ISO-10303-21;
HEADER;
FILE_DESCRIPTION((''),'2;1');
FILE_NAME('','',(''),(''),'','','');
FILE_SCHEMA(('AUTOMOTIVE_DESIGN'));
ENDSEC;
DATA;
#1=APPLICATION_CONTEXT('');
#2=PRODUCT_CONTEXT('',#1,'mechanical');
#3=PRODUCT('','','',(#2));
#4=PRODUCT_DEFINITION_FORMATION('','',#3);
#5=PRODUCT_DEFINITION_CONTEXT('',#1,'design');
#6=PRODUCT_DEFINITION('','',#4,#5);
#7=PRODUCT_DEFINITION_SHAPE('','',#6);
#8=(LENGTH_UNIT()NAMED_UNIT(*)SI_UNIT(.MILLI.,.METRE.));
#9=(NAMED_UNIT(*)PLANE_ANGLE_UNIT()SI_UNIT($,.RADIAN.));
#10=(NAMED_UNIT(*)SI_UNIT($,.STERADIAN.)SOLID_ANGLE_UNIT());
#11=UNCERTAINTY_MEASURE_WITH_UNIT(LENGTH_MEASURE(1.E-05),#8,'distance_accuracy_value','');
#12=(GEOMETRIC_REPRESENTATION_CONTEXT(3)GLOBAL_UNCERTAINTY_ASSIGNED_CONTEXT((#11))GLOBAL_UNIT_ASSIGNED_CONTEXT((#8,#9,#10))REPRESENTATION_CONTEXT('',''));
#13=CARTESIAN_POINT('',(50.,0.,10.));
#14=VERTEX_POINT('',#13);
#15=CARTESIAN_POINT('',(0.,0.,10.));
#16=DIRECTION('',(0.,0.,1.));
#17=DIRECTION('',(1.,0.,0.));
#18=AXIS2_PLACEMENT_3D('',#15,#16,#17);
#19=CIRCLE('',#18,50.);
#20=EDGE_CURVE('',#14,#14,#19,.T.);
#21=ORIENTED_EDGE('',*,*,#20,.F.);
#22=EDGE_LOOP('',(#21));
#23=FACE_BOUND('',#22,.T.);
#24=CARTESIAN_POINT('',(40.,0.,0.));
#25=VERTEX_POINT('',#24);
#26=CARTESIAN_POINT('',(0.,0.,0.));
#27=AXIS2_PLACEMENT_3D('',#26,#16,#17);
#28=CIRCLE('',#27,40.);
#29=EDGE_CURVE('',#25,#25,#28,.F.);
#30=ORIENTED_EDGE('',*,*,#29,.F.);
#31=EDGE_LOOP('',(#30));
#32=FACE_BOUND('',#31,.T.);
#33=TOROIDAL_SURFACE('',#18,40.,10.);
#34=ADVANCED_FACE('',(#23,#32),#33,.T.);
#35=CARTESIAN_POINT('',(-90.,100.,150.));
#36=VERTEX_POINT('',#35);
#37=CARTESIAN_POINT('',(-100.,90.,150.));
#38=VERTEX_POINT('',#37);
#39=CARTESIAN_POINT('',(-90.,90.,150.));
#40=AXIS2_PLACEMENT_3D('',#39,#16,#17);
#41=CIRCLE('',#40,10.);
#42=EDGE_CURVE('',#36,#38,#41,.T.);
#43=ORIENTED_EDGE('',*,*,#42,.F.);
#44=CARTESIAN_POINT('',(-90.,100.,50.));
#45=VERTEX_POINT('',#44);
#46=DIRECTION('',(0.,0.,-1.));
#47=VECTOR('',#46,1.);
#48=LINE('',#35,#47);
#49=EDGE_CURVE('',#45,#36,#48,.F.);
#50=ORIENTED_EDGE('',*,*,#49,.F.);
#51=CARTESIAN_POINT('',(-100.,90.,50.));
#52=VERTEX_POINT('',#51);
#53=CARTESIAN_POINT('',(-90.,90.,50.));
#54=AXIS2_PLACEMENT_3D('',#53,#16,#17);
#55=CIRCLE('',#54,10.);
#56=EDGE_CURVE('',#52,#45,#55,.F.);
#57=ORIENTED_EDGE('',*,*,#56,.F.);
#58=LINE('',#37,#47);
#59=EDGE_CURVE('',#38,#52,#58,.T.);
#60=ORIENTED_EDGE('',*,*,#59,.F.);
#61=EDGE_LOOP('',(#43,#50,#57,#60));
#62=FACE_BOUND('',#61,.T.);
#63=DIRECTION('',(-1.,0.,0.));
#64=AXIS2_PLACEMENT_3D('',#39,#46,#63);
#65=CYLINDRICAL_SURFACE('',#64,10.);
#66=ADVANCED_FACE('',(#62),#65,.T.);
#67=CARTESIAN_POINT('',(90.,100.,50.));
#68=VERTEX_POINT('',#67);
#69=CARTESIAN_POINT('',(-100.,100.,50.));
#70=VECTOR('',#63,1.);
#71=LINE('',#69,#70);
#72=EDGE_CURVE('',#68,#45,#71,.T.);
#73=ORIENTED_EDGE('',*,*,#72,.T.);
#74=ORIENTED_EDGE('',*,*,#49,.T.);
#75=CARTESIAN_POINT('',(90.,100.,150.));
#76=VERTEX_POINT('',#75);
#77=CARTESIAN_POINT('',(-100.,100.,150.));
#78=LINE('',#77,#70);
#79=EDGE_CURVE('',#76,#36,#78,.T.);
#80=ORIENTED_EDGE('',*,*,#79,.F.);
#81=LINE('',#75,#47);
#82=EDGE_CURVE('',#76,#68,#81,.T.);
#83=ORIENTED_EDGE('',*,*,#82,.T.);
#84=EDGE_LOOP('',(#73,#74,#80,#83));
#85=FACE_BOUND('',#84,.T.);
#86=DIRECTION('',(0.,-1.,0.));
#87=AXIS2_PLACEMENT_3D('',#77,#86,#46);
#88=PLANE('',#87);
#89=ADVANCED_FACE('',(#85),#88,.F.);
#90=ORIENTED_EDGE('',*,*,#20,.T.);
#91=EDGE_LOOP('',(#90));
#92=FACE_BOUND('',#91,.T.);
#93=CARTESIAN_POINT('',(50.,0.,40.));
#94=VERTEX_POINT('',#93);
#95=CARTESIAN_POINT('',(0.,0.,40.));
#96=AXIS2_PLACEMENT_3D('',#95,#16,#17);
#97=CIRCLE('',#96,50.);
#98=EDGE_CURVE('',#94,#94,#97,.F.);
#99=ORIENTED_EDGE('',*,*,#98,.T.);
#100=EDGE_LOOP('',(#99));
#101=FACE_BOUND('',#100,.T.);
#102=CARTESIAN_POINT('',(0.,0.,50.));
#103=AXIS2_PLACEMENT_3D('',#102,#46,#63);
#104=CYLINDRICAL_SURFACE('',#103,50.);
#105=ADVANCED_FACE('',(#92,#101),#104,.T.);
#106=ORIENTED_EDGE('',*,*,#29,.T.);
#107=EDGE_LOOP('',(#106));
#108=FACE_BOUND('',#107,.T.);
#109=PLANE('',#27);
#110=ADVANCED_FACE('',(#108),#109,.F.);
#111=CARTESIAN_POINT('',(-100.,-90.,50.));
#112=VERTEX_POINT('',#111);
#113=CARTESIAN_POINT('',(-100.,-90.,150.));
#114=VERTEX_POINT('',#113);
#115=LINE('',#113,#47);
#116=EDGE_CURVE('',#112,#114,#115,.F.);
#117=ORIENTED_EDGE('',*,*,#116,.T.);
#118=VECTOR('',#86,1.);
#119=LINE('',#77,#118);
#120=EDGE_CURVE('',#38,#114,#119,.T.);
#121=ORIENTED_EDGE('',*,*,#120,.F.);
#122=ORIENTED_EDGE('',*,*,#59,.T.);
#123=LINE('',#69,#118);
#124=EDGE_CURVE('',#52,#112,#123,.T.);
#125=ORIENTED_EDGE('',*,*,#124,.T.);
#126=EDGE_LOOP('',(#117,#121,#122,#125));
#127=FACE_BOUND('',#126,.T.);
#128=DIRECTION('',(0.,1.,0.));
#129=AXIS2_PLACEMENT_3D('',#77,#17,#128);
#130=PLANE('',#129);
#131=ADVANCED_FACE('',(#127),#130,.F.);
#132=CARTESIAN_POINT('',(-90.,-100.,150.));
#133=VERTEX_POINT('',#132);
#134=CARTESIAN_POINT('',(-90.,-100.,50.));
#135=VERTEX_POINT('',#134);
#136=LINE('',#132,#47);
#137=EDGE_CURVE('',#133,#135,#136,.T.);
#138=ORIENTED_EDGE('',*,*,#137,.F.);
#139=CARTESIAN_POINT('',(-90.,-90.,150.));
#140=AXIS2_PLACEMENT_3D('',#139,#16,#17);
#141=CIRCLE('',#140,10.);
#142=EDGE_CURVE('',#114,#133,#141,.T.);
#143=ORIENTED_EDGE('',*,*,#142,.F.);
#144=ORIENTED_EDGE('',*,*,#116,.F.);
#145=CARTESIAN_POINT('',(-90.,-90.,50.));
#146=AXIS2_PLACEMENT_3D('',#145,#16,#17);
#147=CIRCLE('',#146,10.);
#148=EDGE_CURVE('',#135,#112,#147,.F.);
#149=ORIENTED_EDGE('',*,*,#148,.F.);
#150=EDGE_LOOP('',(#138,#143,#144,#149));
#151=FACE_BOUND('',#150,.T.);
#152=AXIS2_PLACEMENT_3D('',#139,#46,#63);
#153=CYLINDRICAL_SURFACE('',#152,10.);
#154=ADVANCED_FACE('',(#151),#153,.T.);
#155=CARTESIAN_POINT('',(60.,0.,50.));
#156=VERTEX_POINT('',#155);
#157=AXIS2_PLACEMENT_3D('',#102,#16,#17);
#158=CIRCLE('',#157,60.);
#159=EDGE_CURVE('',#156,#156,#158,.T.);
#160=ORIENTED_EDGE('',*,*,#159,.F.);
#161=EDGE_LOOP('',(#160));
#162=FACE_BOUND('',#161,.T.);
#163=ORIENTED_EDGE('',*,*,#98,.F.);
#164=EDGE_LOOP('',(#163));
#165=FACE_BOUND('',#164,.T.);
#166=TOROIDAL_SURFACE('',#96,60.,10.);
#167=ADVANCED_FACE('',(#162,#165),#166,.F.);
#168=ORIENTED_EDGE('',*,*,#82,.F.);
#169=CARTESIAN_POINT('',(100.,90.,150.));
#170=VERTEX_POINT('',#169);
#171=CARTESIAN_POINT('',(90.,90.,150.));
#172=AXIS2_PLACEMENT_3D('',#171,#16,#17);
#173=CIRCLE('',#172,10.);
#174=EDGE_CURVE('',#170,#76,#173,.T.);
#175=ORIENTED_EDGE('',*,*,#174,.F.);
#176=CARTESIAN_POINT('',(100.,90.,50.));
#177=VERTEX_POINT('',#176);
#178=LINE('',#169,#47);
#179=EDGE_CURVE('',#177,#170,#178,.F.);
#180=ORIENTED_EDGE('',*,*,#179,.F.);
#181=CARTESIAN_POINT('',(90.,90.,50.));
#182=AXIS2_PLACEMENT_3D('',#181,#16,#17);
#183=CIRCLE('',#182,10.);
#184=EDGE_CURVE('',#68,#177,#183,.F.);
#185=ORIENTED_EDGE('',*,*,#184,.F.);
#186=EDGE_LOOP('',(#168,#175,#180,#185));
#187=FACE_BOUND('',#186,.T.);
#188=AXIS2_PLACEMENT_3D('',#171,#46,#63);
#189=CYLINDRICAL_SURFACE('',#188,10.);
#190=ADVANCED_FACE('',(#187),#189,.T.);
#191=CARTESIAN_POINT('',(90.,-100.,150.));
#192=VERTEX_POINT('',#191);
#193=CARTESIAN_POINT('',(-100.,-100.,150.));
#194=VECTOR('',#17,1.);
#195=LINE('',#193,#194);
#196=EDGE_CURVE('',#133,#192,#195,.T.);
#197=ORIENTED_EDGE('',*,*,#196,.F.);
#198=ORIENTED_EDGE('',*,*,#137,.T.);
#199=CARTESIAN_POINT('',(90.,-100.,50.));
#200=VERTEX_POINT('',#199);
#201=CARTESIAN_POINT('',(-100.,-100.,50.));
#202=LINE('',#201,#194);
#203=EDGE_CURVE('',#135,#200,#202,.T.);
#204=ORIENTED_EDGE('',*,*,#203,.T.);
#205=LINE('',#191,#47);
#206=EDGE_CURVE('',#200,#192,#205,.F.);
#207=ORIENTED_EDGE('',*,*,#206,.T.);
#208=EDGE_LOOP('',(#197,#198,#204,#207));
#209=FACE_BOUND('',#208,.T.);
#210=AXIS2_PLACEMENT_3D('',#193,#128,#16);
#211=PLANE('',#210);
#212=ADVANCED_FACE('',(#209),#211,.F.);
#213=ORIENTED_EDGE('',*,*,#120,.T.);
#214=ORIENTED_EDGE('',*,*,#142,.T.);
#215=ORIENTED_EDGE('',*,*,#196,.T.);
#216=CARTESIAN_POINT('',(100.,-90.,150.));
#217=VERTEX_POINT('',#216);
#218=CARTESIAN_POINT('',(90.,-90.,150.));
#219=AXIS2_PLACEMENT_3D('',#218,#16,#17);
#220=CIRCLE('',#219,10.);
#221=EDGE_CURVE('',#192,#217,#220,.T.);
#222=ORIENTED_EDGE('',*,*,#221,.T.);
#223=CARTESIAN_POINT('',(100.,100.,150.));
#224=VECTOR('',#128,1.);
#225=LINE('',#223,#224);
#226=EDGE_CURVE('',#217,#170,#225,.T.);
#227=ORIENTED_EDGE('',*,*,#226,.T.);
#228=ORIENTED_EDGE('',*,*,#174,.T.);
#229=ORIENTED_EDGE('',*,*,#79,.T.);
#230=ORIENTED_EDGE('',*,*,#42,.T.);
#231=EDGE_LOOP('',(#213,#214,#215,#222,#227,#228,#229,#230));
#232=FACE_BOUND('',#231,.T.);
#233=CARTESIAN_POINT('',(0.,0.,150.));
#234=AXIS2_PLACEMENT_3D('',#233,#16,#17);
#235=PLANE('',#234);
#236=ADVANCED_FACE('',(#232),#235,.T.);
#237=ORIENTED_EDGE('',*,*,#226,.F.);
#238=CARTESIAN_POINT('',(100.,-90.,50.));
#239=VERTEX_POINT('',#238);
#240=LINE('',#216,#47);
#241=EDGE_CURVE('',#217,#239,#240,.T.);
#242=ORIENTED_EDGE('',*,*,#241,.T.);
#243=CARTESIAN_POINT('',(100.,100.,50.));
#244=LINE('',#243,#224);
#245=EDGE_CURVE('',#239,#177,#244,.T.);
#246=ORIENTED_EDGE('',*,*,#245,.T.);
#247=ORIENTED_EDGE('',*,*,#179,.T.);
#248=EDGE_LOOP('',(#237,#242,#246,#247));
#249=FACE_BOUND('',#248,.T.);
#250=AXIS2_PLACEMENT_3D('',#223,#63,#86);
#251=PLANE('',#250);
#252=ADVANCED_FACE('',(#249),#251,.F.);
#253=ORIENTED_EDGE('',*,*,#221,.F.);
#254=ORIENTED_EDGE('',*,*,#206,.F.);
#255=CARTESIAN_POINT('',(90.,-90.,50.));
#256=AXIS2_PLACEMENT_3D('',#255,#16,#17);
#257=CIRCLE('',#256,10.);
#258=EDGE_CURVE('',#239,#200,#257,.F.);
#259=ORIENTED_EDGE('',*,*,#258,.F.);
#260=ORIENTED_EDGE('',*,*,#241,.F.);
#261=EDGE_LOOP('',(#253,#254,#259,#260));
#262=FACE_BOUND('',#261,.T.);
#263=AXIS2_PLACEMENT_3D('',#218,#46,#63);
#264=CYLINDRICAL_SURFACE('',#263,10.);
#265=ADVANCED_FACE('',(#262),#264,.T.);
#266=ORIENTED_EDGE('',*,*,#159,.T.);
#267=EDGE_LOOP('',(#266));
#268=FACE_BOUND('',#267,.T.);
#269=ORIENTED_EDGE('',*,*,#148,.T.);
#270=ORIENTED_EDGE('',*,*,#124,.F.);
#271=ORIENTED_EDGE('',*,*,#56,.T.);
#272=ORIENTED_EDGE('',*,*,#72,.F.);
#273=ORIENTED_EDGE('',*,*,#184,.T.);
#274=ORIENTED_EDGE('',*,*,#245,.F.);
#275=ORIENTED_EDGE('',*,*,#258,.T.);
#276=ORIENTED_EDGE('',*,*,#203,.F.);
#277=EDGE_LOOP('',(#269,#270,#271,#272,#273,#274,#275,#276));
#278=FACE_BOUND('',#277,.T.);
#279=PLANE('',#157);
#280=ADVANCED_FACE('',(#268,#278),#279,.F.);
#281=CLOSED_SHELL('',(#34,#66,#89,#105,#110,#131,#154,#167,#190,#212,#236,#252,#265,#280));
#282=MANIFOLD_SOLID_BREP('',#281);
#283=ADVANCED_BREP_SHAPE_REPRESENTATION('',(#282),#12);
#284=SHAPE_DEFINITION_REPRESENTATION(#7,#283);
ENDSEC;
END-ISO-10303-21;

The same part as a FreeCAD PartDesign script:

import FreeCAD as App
import Part
import Sketcher

V = App.Vector
Q = App.Units.Quantity


def edges_at(feature, points):
    """Names of the edges that pass closest to the given points."""
    edges = feature.Shape.Edges
    near = lambda p: min(range(len(edges)), key=lambda i: edges[i].distToShape(Part.Vertex(*p))[0])
    return sorted({f"Edge{near(p) + 1}" for p in points})


def add_polygon(sketch, points):
    """Adds a closed chain of lines whose ends are joined by coincident constraints."""
    first, n = sketch.GeometryCount, len(points)
    for a, b in zip(points, points[1:] + points[:1]):
        sketch.addGeometry(Part.LineSegment(App.Vector(*a, 0), App.Vector(*b, 0)), False)
    for i in range(n):
        sketch.addConstraint(Sketcher.Constraint("Coincident", first + i, 2, first + (i + 1) % n, 1))

doc = App.newDocument("Part")
body = doc.addObject("PartDesign::Body", "Body")

# Sketch on XY plane
sketch1 = body.newObject("Sketcher::SketchObject", "Sketch")
sketch1.AttachmentSupport = (doc.getObject("XY_Plane"), [""])
sketch1.MapMode = "FlatFace"
sketch1.addGeometry(Part.Circle(V(0, 0, 0), V(0, 0, 1), 50), False)
sketch1.addConstraint(Sketcher.Constraint("Coincident", 0, 3, -1, 1))
sketch1.addConstraint(Sketcher.Constraint("Diameter", 0, Q("100 mm")))
pad1 = body.newObject("PartDesign::Pad", "Pad")
pad1.Profile = sketch1
pad1.Length = 50

# Sketch on XY plane
sketch2 = body.newObject("Sketcher::SketchObject", "Sketch001")
sketch2.AttachmentSupport = (doc.getObject("XY_Plane"), [""])
sketch2.MapMode = "FlatFace"
sketch2.AttachmentOffset = App.Placement(V(0, 0, 50), App.Rotation())
add_polygon(sketch2, [(-100, 100), (-100, -100), (100, -100), (100, 100)])  # lines 0-3
sketch2.addConstraint(Sketcher.Constraint("Vertical", 0))
sketch2.addConstraint(Sketcher.Constraint("Horizontal", 1))
sketch2.addConstraint(Sketcher.Constraint("Vertical", 2))
sketch2.addConstraint(Sketcher.Constraint("Horizontal", 3))
sketch2.addConstraint(Sketcher.Constraint("Symmetric", 0, 2, 2, 2, -1, 1))
sketch2.addConstraint(Sketcher.Constraint("Equal", 3, 0))
sketch2.addConstraint(Sketcher.Constraint("DistanceX", 1, 1, 1, 2, Q("200 mm")))
pad2 = body.newObject("PartDesign::Pad", "Pad001")
pad2.Profile = sketch2
pad2.Length = 100
doc.recompute()

fillet = body.newObject("PartDesign::Fillet", "Fillet")
fillet.Base = (pad2, edges_at(pad2, [
    (-50, 0, 0),
    (-50, 0, 50),
    (-100, 100, 100),
    (-100, -100, 100),
    (100, -100, 100),
    (100, 100, 100),
]))
fillet.Radius = 10

doc.recompute()
